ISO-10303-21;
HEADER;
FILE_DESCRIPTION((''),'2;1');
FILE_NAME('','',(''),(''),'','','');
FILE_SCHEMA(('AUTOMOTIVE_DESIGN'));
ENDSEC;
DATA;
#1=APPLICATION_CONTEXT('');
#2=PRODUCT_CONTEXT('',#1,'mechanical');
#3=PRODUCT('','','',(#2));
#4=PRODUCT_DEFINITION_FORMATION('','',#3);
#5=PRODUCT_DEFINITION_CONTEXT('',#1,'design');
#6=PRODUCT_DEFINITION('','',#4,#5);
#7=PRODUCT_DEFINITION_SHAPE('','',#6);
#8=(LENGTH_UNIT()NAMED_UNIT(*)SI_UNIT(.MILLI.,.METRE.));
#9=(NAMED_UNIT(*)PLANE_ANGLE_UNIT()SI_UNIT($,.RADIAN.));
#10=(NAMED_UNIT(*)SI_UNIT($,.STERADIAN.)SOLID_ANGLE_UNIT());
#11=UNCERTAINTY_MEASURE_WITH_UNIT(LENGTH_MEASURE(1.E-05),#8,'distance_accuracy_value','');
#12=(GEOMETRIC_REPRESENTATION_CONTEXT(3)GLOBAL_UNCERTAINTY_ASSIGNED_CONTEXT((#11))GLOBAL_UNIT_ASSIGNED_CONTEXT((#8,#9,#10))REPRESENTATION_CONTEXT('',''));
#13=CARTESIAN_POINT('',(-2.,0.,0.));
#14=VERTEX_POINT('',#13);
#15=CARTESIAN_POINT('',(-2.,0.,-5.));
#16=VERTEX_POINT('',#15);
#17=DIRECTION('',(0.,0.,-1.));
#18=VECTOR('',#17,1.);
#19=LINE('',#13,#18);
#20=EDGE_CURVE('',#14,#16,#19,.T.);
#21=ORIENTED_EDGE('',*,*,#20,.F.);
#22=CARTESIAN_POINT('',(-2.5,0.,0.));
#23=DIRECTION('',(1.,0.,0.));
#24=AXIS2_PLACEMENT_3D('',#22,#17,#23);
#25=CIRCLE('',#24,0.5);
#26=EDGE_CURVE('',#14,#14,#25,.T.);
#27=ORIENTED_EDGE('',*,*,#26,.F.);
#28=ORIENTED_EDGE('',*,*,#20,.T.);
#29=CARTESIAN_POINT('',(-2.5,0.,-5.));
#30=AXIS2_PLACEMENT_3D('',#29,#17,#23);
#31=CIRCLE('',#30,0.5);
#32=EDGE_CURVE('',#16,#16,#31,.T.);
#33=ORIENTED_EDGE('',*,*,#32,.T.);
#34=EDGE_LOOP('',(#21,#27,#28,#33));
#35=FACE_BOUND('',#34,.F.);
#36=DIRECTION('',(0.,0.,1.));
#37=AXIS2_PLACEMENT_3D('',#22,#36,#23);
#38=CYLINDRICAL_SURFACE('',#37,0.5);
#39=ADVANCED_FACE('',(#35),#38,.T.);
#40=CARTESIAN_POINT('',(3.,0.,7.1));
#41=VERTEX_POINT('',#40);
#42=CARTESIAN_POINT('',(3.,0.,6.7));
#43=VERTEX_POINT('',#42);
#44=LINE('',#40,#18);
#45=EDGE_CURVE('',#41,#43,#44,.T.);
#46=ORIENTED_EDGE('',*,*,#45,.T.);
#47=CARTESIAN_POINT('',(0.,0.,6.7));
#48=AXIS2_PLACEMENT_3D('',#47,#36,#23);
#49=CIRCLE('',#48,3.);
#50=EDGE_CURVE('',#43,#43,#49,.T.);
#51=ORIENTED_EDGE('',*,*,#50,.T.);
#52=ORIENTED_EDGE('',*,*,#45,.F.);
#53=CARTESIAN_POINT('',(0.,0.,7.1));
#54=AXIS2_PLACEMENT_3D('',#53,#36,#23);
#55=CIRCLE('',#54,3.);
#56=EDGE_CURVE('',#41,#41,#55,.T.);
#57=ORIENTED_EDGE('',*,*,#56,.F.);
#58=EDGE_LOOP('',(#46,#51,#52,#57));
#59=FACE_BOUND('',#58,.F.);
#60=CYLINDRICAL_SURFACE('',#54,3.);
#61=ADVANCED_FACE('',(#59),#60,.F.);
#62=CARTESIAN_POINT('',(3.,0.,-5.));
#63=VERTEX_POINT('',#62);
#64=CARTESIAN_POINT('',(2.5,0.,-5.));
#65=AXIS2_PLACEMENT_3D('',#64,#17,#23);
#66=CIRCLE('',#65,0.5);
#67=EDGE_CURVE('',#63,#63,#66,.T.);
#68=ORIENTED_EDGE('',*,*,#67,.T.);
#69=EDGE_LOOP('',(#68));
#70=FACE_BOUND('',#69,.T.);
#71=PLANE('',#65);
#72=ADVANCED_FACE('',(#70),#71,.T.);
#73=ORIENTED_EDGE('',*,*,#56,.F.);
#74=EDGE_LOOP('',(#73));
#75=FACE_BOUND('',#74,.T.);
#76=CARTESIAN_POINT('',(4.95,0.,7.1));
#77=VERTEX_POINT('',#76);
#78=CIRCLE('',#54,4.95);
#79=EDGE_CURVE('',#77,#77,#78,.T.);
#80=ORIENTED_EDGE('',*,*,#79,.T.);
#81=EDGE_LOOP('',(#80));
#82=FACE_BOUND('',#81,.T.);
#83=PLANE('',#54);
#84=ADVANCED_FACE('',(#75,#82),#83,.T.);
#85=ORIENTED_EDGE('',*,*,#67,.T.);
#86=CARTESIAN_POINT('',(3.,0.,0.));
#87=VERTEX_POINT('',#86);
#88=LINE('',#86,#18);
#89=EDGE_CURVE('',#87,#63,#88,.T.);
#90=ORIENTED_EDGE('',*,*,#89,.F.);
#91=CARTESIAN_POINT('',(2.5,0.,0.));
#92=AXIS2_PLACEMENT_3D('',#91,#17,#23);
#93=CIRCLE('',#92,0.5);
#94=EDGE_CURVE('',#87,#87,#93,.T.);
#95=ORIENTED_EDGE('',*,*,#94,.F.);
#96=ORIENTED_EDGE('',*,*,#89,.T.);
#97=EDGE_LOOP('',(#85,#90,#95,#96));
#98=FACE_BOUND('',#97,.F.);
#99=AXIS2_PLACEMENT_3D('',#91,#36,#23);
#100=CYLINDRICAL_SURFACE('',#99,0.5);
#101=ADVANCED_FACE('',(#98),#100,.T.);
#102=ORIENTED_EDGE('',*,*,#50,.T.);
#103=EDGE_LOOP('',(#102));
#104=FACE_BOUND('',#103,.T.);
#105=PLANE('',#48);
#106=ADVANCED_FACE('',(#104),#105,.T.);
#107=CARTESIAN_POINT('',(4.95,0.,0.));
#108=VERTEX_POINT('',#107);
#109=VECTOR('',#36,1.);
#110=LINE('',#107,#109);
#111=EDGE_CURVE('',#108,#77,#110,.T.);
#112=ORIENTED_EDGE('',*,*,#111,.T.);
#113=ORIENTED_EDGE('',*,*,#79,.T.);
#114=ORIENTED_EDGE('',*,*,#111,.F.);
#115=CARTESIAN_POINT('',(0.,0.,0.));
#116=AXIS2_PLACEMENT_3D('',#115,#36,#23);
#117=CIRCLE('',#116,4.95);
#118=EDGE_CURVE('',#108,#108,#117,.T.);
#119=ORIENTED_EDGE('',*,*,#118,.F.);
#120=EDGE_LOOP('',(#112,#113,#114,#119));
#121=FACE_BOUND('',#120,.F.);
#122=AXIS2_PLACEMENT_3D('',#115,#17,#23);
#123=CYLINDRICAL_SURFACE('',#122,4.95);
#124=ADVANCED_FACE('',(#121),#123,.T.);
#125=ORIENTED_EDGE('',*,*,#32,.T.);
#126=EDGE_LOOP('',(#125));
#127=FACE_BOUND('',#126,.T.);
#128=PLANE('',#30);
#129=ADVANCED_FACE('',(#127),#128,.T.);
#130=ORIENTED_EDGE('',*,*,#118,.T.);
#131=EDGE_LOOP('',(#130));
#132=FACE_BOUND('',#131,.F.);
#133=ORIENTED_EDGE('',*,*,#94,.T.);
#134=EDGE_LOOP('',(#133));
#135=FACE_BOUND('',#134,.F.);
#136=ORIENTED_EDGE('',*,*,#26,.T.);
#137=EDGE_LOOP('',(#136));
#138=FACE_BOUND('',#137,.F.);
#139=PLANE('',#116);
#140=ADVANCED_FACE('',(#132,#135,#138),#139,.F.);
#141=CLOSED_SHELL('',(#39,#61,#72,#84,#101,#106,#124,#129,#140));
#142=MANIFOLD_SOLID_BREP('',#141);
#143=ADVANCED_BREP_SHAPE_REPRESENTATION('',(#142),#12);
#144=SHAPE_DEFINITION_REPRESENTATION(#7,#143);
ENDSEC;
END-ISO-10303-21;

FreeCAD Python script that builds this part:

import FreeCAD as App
import Part
import Sketcher

V = App.Vector
Q = App.Units.Quantity

doc = App.newDocument("Part")
body = doc.addObject("PartDesign::Body", "Body")

# Sketch on XY plane
sketch1 = doc.addObject("Sketcher::SketchObject", "Sketch")
body.addObject(sketch1)
sketch1.AttachmentSupport = (doc.XY_Plane, [""])
sketch1.MapMode = "FlatFace"
sketch1.addGeometry(Part.Circle(V(0, 0, 0), V(0, 0, 1), 5), False)
sketch1.addConstraint(Sketcher.Constraint("Coincident", 0, 3, -1, 1))
sketch1.addConstraint(Sketcher.Constraint("Diameter", 0, Q("9.9 mm")))
pad1 = doc.addObject("PartDesign::Pad", "Pad")
body.addObject(pad1)
pad1.Profile = sketch1
pad1.Length = 7.1

# Sketch on XY plane
sketch2 = doc.addObject("Sketcher::SketchObject", "Sketch001")
body.addObject(sketch2)
sketch2.AttachmentSupport = (doc.XY_Plane, [""])
sketch2.MapMode = "FlatFace"
sketch2.addGeometry(Part.Circle(V(2.5, 0, 0), V(0, 0, 1), 0.5), False)
sketch2.addGeometry(Part.Circle(V(-2.5, 0, 0), V(0, 0, 1), 0.5), False)
sketch2.addConstraint(Sketcher.Constraint("Equal", 0, 1))
sketch2.addConstraint(Sketcher.Constraint("Symmetric", 0, 3, 1, 3, -1, 1))
sketch2.addConstraint(Sketcher.Constraint("PointOnObject", 0, 3, -1))
sketch2.addConstraint(Sketcher.Constraint("Diameter", 0, Q("1 mm")))
sketch2.addConstraint(Sketcher.Constraint("DistanceX", 1, 3, 0, 3, Q("5 mm")))
pad2 = doc.addObject("PartDesign::Pad", "Pad001")
body.addObject(pad2)
pad2.Profile = sketch2
pad2.Length = 5
pad2.Reversed = True

# Sketch on XY plane
sketch3 = doc.addObject("Sketcher::SketchObject", "Sketch002")
body.addObject(sketch3)
sketch3.AttachmentSupport = (doc.XY_Plane, [""])
sketch3.MapMode = "FlatFace"
sketch3.AttachmentOffset = App.Placement(V(0, 0, 7.1), App.Rotation())
sketch3.addGeometry(Part.Circle(V(0, 0, 0), V(0, 0, 1), 3), False)
sketch3.addConstraint(Sketcher.Constraint("Coincident", 0, 3, -1, 1))
sketch3.addConstraint(Sketcher.Constraint("Diameter", 0, Q("6 mm")))
pocket1 = doc.addObject("PartDesign::Pocket", "Pocket")
body.addObject(pocket1)
pocket1.Profile = sketch3
pocket1.Length = 0.4

doc.recompute()
